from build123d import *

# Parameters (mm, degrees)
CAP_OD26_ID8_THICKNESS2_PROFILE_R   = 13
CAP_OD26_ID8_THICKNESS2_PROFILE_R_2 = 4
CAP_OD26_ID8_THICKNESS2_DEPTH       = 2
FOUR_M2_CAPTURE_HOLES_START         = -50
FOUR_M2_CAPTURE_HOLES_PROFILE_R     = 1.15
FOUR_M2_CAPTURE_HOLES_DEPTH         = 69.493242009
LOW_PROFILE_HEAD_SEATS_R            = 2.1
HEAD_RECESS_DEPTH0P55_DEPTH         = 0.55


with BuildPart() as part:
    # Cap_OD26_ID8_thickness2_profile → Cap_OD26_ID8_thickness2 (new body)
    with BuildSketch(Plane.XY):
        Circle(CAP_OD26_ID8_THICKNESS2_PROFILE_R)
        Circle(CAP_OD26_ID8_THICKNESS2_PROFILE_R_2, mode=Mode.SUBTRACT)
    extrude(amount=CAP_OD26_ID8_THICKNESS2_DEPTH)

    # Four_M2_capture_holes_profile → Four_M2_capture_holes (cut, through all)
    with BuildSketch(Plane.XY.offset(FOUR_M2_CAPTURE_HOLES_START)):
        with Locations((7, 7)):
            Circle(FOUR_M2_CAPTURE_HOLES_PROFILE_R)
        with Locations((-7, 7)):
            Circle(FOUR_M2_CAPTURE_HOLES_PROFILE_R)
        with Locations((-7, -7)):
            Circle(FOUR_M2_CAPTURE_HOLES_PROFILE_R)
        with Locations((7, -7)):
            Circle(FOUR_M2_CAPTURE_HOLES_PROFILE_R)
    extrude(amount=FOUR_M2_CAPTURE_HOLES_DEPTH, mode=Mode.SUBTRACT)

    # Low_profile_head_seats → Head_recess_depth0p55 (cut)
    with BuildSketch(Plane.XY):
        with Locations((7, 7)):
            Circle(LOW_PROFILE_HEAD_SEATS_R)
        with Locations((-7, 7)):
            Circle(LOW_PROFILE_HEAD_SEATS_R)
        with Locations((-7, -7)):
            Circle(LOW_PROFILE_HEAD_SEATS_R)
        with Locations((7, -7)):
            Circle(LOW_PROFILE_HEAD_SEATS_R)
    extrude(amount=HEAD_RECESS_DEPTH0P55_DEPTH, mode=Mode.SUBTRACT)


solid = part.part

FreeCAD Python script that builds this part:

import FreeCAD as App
import Part
import Sketcher
from FreeCAD import Vector
Q = App.Units.Quantity

doc = App.newDocument("Part")
body = doc.addObject("PartDesign::Body", "Body")

sketch1 = doc.addObject("Sketcher::SketchObject", "Sketch")
body.addObject(sketch1)
sketch1.AttachmentSupport = (doc.XY_Plane, [""])
sketch1.MapMode = "FlatFace"
sketch1.addGeometry([
    Part.Circle(Vector(0, 0, 0), Vector(0, 0, 1), 13),
    Part.Circle(Vector(0, 0, 0), Vector(0, 0, 1), 4),
], False)
sketch1.addConstraint([
    Sketcher.Constraint("Coincident", 0, 3, -1, 1),
    Sketcher.Constraint("Coincident", 1, 3, -1, 1),
    Sketcher.Constraint("Diameter", 0, Q("26 mm")),
    Sketcher.Constraint("Diameter", 1, Q("8 mm")),
])
pad1 = doc.addObject("PartDesign::Pad", "Pad")
body.addObject(pad1)
pad1.Profile = sketch1
pad1.Length = 2

sketch2 = doc.addObject("Sketcher::SketchObject", "Sketch001")
body.addObject(sketch2)
sketch2.AttachmentSupport = (doc.XY_Plane, [""])
sketch2.MapMode = "FlatFace"
sketch2.AttachmentOffset = App.Placement(Vector(0, 0, -50), App.Rotation())
sketch2.addGeometry([
    Part.Circle(Vector(7, 7, 0), Vector(0, 0, 1), 1.1),
    Part.Circle(Vector(-7, 7, 0), Vector(0, 0, 1), 1.1),
    Part.Circle(Vector(-7, -7, 0), Vector(0, 0, 1), 1.1),
    Part.Circle(Vector(7, -7, 0), Vector(0, 0, 1), 1.1),
], False)
sketch2.addConstraint([
    Sketcher.Constraint("Equal", 0, 1),
    Sketcher.Constraint("Equal", 1, 2),
    Sketcher.Constraint("Equal", 2, 3),
    Sketcher.Constraint("Symmetric", 0, 3, 2, 3, -1, 1),
    Sketcher.Constraint("Symmetric", 1, 3, 3, 3, -1, 1),
    Sketcher.Constraint("Symmetric", 0, 3, 1, 3, -2),
    Sketcher.Constraint("Diameter", 0, Q("2.3 mm")),
    Sketcher.Constraint("DistanceX", -1, 1, 0, 3, Q("7 mm")),
    Sketcher.Constraint("DistanceY", -1, 1, 0, 3, Q("7 mm")),
])
pocket1 = doc.addObject("PartDesign::Pocket", "Pocket")
body.addObject(pocket1)
pocket1.Profile = sketch2
pocket1.Type = "ThroughAll"
pocket1.Reversed = True

sketch3 = doc.addObject("Sketcher::SketchObject", "Sketch002")
body.addObject(sketch3)
sketch3.AttachmentSupport = (doc.XY_Plane, [""])
sketch3.MapMode = "FlatFace"
sketch3.addGeometry([
    Part.Circle(Vector(7, 7, 0), Vector(0, 0, 1), 2.1),
    Part.Circle(Vector(-7, 7, 0), Vector(0, 0, 1), 2.1),
    Part.Circle(Vector(-7, -7, 0), Vector(0, 0, 1), 2.1),
    Part.Circle(Vector(7, -7, 0), Vector(0, 0, 1), 2.1),
], False)
sketch3.addConstraint([
    Sketcher.Constraint("Equal", 0, 1),
    Sketcher.Constraint("Equal", 1, 2),
    Sketcher.Constraint("Equal", 2, 3),
    Sketcher.Constraint("Symmetric", 0, 3, 2, 3, -1, 1),
    Sketcher.Constraint("Symmetric", 1, 3, 3, 3, -1, 1),
    Sketcher.Constraint("Symmetric", 0, 3, 1, 3, -2),
    Sketcher.Constraint("Diameter", 0, Q("4.2 mm")),
    Sketcher.Constraint("DistanceX", -1, 1, 0, 3, Q("7 mm")),
    Sketcher.Constraint("DistanceY", -1, 1, 0, 3, Q("7 mm")),
])
pocket2 = doc.addObject("PartDesign::Pocket", "Pocket001")
body.addObject(pocket2)
pocket2.Profile = sketch3
pocket2.Length = 0.55
pocket2.Reversed = True

doc.recompute()
